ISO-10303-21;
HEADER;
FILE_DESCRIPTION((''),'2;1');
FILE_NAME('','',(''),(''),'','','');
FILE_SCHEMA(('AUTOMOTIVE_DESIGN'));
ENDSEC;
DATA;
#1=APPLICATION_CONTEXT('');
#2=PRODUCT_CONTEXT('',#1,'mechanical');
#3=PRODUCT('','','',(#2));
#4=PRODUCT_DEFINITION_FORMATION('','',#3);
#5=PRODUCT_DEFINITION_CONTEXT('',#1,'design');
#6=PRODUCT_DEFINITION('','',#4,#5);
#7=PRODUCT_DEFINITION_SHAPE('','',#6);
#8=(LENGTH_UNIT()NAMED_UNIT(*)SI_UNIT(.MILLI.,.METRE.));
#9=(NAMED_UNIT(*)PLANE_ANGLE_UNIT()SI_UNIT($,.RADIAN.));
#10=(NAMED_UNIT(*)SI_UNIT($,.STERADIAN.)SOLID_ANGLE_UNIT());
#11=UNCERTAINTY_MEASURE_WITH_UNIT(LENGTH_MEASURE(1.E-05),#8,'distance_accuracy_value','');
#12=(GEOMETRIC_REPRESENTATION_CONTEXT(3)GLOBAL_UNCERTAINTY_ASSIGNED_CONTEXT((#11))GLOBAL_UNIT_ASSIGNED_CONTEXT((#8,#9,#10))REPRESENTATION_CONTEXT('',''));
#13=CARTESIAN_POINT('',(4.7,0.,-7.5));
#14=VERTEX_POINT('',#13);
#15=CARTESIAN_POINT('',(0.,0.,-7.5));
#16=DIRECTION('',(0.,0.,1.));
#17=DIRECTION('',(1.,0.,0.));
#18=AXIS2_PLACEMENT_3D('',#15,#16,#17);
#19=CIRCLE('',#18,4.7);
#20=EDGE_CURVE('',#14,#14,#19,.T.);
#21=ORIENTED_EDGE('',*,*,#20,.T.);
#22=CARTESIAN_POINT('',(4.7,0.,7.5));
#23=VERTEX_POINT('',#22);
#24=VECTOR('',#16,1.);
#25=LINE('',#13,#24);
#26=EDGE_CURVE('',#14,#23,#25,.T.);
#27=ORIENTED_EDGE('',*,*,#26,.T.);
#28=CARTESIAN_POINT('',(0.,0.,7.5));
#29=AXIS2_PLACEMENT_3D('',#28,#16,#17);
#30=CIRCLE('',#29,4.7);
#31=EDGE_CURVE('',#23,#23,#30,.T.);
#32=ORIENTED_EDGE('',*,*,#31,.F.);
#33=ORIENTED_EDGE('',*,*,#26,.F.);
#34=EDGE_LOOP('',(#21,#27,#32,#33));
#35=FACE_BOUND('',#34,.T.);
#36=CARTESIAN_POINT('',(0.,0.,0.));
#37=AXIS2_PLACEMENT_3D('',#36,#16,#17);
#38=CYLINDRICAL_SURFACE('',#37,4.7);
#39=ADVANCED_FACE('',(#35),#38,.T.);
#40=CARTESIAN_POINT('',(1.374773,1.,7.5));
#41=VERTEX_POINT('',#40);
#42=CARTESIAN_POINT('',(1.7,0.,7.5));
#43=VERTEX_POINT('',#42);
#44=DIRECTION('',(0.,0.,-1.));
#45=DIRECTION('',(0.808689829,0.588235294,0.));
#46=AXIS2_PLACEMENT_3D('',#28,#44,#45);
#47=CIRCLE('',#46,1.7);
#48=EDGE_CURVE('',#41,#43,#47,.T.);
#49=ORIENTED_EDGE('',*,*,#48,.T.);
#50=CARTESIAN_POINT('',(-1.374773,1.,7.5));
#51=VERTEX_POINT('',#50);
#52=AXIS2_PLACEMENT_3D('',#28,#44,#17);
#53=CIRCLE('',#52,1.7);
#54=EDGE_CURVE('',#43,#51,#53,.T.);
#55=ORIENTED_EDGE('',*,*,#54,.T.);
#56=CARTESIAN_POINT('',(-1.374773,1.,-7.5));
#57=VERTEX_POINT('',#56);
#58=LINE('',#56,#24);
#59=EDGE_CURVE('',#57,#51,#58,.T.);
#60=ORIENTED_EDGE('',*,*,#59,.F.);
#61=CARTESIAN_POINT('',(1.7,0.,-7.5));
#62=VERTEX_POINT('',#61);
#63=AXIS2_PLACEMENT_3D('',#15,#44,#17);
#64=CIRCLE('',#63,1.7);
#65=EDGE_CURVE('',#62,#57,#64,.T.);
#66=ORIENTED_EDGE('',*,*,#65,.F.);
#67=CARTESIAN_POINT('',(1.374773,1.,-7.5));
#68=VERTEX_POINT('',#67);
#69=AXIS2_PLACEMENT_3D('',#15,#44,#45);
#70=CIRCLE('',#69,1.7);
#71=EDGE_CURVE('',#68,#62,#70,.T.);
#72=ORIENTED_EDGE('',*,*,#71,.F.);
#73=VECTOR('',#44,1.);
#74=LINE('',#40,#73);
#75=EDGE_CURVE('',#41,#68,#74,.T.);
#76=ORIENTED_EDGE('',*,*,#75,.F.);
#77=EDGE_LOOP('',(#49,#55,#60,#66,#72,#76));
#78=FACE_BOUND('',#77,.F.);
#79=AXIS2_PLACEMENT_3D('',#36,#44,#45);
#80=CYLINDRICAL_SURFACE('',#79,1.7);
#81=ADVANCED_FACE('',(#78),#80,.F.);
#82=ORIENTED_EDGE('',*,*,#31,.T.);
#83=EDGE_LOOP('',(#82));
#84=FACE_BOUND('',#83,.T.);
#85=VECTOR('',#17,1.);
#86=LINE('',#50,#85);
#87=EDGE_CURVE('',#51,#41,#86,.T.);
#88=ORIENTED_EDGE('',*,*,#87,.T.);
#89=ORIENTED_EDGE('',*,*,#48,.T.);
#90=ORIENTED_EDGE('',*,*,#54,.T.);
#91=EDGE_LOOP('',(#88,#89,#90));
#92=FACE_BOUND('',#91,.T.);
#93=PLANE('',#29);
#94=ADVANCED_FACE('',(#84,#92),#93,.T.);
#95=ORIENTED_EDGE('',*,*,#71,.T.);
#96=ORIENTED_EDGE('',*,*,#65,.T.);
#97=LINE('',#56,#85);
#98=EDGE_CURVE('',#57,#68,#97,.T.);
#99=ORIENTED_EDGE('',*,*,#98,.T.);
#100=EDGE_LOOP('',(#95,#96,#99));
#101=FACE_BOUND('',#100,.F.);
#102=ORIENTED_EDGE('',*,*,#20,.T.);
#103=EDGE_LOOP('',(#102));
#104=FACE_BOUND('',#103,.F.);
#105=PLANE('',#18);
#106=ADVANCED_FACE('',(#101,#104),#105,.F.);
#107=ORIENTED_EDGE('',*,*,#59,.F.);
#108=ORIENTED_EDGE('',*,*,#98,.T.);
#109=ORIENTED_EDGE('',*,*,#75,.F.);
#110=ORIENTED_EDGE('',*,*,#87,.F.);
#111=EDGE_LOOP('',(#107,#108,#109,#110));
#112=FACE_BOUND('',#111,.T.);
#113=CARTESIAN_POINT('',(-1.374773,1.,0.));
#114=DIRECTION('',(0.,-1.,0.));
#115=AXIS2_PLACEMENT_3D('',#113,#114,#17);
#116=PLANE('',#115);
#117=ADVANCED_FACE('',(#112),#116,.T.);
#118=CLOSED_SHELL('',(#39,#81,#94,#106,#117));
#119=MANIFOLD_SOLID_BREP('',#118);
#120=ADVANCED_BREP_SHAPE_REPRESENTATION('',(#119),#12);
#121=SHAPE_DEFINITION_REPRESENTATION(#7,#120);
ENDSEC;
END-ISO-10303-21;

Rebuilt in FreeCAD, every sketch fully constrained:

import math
import FreeCAD as App
import Part
import Sketcher

V = App.Vector

doc = App.newDocument("Part")
body = doc.addObject("PartDesign::Body", "Body")

sketch1 = body.newObject("Sketcher::SketchObject", "Sketch")
sketch1.AttachmentSupport = (doc.getObject("XY_Plane"), [""])
sketch1.MapMode = "FlatFace"
sketch1.addGeometry(Part.Circle(V(0, 0, 0), V(0, 0, 1), 4.7), False)
sketch1.addGeometry(Part.ArcOfCircle(Part.Circle(V(0, 0, 0), V(0, 0, 1), 1.7), math.radians(144), math.radians(360)), False)
sketch1.addGeometry(Part.LineSegment(V(-1.4, 1, 0), V(1.4, 1, 0)), False)
sketch1.addGeometry(Part.ArcOfCircle(Part.Circle(V(0, 0, 0), V(0, 0, 1), 1.7), math.radians(0), math.radians(36)), False)
sketch1.addConstraint(Sketcher.Constraint("Coincident", 1, 1, 2, 1))
sketch1.addConstraint(Sketcher.Constraint("Coincident", 2, 2, 3, 2))
sketch1.addConstraint(Sketcher.Constraint("Tangent", 3, 1, 1, 2))
sketch1.addConstraint(Sketcher.Constraint("Horizontal", 2))
sketch1.addConstraint(Sketcher.Constraint("Coincident", 0, 3, -1, 1))
sketch1.addConstraint(Sketcher.Constraint("Coincident", 1, 3, -1, 1))
sketch1.addConstraint(Sketcher.Constraint("Equal", 1, 3))
sketch1.addConstraint(Sketcher.Constraint("PointOnObject", 3, 1, -1))
sketch1.addConstraint(Sketcher.Constraint("Diameter", 0, 9.4))
sketch1.addConstraint(Sketcher.Constraint("Radius", 1, 1.7))
sketch1.addConstraint(Sketcher.Constraint("DistanceY", -1, 1, 1, 1, 1.0))
pad1 = body.newObject("PartDesign::Pad", "Pad")
pad1.Profile = sketch1
pad1.Length = 15
pad1.Midplane = True

doc.recompute()
